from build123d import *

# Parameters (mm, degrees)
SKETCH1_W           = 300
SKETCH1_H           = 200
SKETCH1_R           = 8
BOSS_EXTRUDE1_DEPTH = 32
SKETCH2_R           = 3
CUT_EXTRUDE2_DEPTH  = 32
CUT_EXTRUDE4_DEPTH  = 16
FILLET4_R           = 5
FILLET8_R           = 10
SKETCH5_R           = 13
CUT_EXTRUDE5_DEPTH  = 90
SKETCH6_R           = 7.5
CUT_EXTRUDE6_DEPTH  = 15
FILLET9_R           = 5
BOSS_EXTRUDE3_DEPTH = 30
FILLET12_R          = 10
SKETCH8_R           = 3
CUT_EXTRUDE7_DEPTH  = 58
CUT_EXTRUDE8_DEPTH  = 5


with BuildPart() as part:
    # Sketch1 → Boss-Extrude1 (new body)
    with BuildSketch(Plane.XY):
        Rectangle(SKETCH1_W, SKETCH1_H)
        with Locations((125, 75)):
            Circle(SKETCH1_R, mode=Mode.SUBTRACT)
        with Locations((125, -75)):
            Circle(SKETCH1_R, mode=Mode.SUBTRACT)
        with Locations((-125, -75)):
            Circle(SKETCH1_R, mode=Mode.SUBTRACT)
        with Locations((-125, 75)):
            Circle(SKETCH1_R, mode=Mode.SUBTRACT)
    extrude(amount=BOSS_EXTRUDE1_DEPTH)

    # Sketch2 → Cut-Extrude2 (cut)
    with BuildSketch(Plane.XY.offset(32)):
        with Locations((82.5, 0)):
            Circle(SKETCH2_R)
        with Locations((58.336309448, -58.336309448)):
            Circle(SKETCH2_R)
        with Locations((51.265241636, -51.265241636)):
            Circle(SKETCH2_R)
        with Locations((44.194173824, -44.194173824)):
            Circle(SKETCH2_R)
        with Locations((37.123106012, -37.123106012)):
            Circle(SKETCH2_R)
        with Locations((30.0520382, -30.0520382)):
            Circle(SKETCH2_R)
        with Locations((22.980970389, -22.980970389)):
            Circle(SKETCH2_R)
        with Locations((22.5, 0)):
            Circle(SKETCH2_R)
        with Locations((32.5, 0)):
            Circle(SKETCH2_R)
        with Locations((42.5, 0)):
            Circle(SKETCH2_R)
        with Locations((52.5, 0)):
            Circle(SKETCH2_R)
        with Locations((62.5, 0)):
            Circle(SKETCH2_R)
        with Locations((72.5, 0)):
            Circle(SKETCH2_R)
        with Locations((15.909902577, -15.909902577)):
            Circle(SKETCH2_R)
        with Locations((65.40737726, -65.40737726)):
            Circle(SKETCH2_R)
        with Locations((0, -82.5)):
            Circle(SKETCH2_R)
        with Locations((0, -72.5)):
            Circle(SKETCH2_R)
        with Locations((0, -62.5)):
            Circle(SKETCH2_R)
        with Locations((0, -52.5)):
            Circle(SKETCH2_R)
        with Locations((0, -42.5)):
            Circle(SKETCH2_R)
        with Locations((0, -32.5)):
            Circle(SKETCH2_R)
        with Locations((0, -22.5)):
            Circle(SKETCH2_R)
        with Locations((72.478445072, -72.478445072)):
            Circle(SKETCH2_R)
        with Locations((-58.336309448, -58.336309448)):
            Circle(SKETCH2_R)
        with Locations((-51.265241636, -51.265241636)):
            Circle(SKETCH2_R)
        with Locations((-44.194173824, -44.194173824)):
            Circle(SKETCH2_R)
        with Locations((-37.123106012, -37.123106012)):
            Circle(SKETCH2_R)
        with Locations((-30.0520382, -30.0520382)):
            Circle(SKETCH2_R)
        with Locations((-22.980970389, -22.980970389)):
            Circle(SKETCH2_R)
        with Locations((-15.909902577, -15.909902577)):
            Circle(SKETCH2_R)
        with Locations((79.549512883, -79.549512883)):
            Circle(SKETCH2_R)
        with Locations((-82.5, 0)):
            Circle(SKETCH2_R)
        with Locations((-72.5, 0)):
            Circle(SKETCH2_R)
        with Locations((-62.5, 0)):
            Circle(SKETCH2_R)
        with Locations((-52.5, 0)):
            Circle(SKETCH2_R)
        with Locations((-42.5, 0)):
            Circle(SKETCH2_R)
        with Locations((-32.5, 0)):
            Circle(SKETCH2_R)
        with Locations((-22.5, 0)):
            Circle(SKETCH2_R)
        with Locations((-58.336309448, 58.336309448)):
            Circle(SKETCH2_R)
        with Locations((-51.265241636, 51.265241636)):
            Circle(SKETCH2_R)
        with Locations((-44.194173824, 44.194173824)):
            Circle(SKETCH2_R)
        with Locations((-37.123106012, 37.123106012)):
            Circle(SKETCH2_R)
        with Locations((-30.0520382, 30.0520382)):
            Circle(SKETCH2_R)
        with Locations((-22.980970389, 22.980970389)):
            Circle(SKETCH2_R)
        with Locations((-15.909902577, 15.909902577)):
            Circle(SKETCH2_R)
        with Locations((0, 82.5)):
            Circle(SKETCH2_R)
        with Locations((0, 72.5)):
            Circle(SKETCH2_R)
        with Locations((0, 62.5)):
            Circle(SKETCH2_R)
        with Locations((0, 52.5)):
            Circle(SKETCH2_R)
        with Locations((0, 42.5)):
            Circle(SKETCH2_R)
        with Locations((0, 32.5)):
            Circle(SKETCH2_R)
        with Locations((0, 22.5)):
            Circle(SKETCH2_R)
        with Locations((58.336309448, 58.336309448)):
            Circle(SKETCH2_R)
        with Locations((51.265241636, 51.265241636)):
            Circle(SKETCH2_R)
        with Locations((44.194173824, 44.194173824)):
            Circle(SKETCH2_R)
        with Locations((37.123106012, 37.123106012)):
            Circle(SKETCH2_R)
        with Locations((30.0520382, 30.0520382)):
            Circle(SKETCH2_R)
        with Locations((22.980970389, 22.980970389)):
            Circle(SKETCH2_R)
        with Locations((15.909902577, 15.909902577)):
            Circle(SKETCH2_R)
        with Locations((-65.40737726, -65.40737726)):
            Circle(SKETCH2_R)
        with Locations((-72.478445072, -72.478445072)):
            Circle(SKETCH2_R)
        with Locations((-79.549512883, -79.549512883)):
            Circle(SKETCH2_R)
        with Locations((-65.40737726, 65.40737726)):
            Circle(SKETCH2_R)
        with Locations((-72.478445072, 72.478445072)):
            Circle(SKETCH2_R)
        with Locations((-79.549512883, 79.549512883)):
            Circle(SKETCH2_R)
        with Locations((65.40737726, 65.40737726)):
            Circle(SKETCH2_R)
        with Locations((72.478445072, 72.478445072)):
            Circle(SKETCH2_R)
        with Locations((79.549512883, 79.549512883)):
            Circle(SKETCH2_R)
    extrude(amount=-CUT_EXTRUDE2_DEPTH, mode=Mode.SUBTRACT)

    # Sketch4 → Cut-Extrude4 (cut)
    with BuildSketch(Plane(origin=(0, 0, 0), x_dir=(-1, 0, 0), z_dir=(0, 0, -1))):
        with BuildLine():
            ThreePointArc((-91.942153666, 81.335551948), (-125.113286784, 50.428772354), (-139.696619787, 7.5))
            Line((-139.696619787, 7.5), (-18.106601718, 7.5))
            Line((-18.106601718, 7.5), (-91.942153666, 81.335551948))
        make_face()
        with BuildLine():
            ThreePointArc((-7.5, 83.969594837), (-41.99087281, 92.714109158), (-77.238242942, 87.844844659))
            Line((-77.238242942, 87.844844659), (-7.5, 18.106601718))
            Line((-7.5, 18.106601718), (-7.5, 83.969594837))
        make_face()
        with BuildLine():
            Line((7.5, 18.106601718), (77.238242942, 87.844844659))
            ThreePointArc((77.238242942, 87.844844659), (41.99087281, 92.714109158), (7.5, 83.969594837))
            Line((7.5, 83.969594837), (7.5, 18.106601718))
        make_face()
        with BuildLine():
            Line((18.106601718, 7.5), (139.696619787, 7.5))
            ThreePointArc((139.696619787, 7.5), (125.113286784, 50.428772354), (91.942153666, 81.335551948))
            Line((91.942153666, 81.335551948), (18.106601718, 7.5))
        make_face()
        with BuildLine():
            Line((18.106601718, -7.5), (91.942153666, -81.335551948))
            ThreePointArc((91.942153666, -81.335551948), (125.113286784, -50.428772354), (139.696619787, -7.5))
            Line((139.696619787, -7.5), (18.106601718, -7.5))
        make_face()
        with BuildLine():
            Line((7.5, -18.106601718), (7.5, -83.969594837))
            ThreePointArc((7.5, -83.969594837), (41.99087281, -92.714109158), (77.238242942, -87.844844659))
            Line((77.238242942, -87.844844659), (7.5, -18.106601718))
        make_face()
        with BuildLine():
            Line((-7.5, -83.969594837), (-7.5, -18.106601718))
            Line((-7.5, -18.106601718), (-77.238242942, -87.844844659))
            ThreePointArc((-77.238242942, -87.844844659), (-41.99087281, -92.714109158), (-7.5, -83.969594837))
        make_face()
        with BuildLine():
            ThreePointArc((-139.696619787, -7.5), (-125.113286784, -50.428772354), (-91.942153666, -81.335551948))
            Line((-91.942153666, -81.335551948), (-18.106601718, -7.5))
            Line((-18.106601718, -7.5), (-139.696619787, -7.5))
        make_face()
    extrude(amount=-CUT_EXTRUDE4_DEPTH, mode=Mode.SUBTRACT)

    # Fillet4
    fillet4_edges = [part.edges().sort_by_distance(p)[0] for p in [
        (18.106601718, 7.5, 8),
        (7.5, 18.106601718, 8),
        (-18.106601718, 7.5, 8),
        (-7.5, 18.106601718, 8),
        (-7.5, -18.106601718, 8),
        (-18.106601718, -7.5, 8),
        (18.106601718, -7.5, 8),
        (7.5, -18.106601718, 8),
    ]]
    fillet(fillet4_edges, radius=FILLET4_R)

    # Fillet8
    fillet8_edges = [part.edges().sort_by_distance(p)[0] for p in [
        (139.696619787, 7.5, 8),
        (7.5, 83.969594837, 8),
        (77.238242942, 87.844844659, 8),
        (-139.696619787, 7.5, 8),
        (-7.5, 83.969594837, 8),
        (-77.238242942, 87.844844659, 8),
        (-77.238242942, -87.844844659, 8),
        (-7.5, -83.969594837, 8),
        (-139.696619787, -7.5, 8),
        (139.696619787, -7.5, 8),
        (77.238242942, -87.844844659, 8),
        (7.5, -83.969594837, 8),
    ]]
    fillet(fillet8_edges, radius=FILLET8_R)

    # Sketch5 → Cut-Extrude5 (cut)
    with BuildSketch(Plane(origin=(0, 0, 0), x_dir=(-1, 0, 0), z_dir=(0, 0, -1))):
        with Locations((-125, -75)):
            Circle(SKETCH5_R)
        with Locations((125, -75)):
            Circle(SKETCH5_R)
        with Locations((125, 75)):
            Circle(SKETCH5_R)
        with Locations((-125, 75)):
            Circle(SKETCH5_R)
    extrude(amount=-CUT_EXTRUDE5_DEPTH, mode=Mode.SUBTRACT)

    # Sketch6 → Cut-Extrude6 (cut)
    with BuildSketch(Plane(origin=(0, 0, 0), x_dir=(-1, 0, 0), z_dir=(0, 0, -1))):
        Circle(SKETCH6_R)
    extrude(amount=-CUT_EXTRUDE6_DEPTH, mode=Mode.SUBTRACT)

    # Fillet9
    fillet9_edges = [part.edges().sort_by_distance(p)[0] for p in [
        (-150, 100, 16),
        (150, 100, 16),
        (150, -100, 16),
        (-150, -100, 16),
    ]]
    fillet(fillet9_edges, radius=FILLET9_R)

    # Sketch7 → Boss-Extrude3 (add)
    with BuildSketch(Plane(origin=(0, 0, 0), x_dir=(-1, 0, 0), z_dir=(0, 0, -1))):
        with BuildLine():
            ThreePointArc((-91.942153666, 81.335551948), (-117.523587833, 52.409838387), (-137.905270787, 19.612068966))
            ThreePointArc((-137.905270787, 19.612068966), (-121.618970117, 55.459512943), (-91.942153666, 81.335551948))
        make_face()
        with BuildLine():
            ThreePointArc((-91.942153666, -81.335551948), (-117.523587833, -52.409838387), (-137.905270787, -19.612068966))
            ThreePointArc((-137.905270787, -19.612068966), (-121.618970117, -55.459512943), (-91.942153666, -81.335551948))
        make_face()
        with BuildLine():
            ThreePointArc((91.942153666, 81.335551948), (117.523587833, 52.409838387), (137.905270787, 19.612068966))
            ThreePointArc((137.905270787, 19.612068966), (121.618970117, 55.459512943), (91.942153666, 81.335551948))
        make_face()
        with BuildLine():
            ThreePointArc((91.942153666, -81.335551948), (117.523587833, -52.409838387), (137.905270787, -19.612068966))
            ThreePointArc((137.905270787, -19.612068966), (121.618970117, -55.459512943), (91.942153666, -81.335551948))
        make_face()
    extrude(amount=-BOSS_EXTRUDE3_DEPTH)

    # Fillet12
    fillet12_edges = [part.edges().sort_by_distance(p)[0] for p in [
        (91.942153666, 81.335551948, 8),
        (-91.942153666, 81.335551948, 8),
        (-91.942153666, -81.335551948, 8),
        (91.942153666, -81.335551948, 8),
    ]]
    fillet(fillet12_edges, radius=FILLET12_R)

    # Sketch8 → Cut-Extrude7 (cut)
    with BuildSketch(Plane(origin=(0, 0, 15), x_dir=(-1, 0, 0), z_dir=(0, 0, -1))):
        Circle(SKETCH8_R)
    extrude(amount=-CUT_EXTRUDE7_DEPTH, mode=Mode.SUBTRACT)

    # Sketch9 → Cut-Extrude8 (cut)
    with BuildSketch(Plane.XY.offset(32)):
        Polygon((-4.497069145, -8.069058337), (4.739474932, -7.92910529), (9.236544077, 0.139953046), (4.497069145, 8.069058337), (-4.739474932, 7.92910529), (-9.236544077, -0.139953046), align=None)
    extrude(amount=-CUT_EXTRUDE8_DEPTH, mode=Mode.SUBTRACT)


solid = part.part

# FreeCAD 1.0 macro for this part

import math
import FreeCAD as App
import Part
import Sketcher


def edges_at(feature, points):
    """Names of the edges that pass closest to the given points."""
    edges = feature.Shape.Edges
    near = lambda p: min(range(len(edges)), key=lambda i: edges[i].distToShape(Part.Vertex(*p))[0])
    return sorted({f"Edge{near(p) + 1}" for p in points})

doc = App.newDocument("Part")
body = doc.addObject("PartDesign::Body", "Body")

# Sketch on XY plane
sketch1 = body.newObject("Sketcher::SketchObject", "Sketch")
sketch1.AttachmentSupport = (doc.getObject("XY_Plane"), [""])
sketch1.MapMode = "FlatFace"
sketch1.addGeometry([
    Part.LineSegment(App.Vector(-150, 100, 0), App.Vector(-150, -100, 0)),  # 0
    Part.LineSegment(App.Vector(-150, -100, 0), App.Vector(150, -100, 0)),  # 1
    Part.LineSegment(App.Vector(150, -100, 0), App.Vector(150, 100, 0)),  # 2
    Part.LineSegment(App.Vector(150, 100, 0), App.Vector(-150, 100, 0)),  # 3
    Part.Circle(App.Vector(-125, -75, 0), App.Vector(0, 0, 1), 8),  # 4
    Part.Circle(App.Vector(125, -75, 0), App.Vector(0, 0, 1), 8),  # 5
    Part.Circle(App.Vector(-125, 75, 0), App.Vector(0, 0, 1), 8),  # 6
    Part.Circle(App.Vector(125, 75, 0), App.Vector(0, 0, 1), 8),  # 7
], False)
sketch1.addConstraint([
    Sketcher.Constraint("Coincident", 0, 2, 1, 1),
    Sketcher.Constraint("Coincident", 1, 2, 2, 1),
    Sketcher.Constraint("Coincident", 2, 2, 3, 1),
    Sketcher.Constraint("Coincident", 3, 2, 0, 1),
    Sketcher.Constraint("Vertical", 0),
    Sketcher.Constraint("Horizontal", 1),
    Sketcher.Constraint("Vertical", 2),
    Sketcher.Constraint("Horizontal", 3),
    Sketcher.Constraint("Equal", 4, 5),
    Sketcher.Constraint("Equal", 5, 6),
    Sketcher.Constraint("Equal", 6, 7),
    Sketcher.Constraint("Symmetric", 5, 3, 6, 3, -1, 1),
    Sketcher.Constraint("Symmetric", 4, 3, 7, 3, -1, 1),
    Sketcher.Constraint("Symmetric", 0, 2, 2, 2, -1, 1),
    Sketcher.Constraint("Symmetric", 4, 3, 5, 3, -2),
    Sketcher.Constraint("Diameter", 4, 16.0),
    Sketcher.Constraint("DistanceX", 1, 1, 1, 2, 300.0),
    Sketcher.Constraint("DistanceY", 0, 2, 0, 1, 200.0),
    Sketcher.Constraint("DistanceX", 4, 3, -1, 1, 125.0),
    Sketcher.Constraint("DistanceY", 4, 3, -1, 1, 75.0),
])
pad1 = body.newObject("PartDesign::Pad", "Pad")
pad1.Profile = sketch1
pad1.Length = 32

# Sketch on XY plane
sketch2 = body.newObject("Sketcher::SketchObject", "Sketch001")
sketch2.AttachmentSupport = (doc.getObject("XY_Plane"), [""])
sketch2.MapMode = "FlatFace"
sketch2.AttachmentOffset = App.Placement(App.Vector(0, 0, 32), App.Rotation())
sketch2.addGeometry([
    Part.Circle(App.Vector(82.5, 0, 0), App.Vector(0, 0, 1), 3),  # 0
    Part.Circle(App.Vector(58.336309, -58.336309, 0), App.Vector(0, 0, 1), 3),  # 1
    Part.Circle(App.Vector(51.265242, -51.265242, 0), App.Vector(0, 0, 1), 3),  # 2
    Part.Circle(App.Vector(44.194174, -44.194174, 0), App.Vector(0, 0, 1), 3),  # 3
    Part.Circle(App.Vector(37.123106, -37.123106, 0), App.Vector(0, 0, 1), 3),  # 4
    Part.Circle(App.Vector(30.052038, -30.052038, 0), App.Vector(0, 0, 1), 3),  # 5
    Part.Circle(App.Vector(22.98097, -22.98097, 0), App.Vector(0, 0, 1), 3),  # 6
    Part.Circle(App.Vector(22.5, 0, 0), App.Vector(0, 0, 1), 3),  # 7
    Part.Circle(App.Vector(32.5, 0, 0), App.Vector(0, 0, 1), 3),  # 8
    Part.Circle(App.Vector(42.5, 0, 0), App.Vector(0, 0, 1), 3),  # 9
    Part.Circle(App.Vector(52.5, 0, 0), App.Vector(0, 0, 1), 3),  # 10
    Part.Circle(App.Vector(62.5, 0, 0), App.Vector(0, 0, 1), 3),  # 11
    Part.Circle(App.Vector(72.5, 0, 0), App.Vector(0, 0, 1), 3),  # 12
    Part.Circle(App.Vector(15.909903, -15.909903, 0), App.Vector(0, 0, 1), 3),  # 13
    Part.Circle(App.Vector(65.407377, -65.407377, 0), App.Vector(0, 0, 1), 3),  # 14
    Part.Circle(App.Vector(0, -82.5, 0), App.Vector(0, 0, 1), 3),  # 15
    Part.Circle(App.Vector(0, -72.5, 0), App.Vector(0, 0, 1), 3),  # 16
    Part.Circle(App.Vector(0, -62.5, 0), App.Vector(0, 0, 1), 3),  # 17
    Part.Circle(App.Vector(0, -52.5, 0), App.Vector(0, 0, 1), 3),  # 18
    Part.Circle(App.Vector(0, -42.5, 0), App.Vector(0, 0, 1), 3),  # 19
    Part.Circle(App.Vector(0, -32.5, 0), App.Vector(0, 0, 1), 3),  # 20
    Part.Circle(App.Vector(0, -22.5, 0), App.Vector(0, 0, 1), 3),  # 21
    Part.Circle(App.Vector(72.478445, -72.478445, 0), App.Vector(0, 0, 1), 3),  # 22
    Part.Circle(App.Vector(-58.336309, -58.336309, 0), App.Vector(0, 0, 1), 3),  # 23
    Part.Circle(App.Vector(-51.265242, -51.265242, 0), App.Vector(0, 0, 1), 3),  # 24
    Part.Circle(App.Vector(-44.194174, -44.194174, 0), App.Vector(0, 0, 1), 3),  # 25
    Part.Circle(App.Vector(-37.123106, -37.123106, 0), App.Vector(0, 0, 1), 3),  # 26
    Part.Circle(App.Vector(-30.052038, -30.052038, 0), App.Vector(0, 0, 1), 3),  # 27
    Part.Circle(App.Vector(-22.98097, -22.98097, 0), App.Vector(0, 0, 1), 3),  # 28
    Part.Circle(App.Vector(-15.909903, -15.909903, 0), App.Vector(0, 0, 1), 3),  # 29
    Part.Circle(App.Vector(79.549513, -79.549513, 0), App.Vector(0, 0, 1), 3),  # 30
    Part.Circle(App.Vector(-82.5, 0, 0), App.Vector(0, 0, 1), 3),  # 31
    Part.Circle(App.Vector(-72.5, 0, 0), App.Vector(0, 0, 1), 3),  # 32
    Part.Circle(App.Vector(-62.5, 0, 0), App.Vector(0, 0, 1), 3),  # 33
    Part.Circle(App.Vector(-52.5, 0, 0), App.Vector(0, 0, 1), 3),  # 34
    Part.Circle(App.Vector(-42.5, 0, 0), App.Vector(0, 0, 1), 3),  # 35
    Part.Circle(App.Vector(-32.5, 0, 0), App.Vector(0, 0, 1), 3),  # 36
    Part.Circle(App.Vector(-22.5, 0, 0), App.Vector(0, 0, 1), 3),  # 37
    Part.Circle(App.Vector(-58.336309, 58.336309, 0), App.Vector(0, 0, 1), 3),  # 38
    Part.Circle(App.Vector(-51.265242, 51.265242, 0), App.Vector(0, 0, 1), 3),  # 39
    Part.Circle(App.Vector(-44.194174, 44.194174, 0), App.Vector(0, 0, 1), 3),  # 40
    Part.Circle(App.Vector(-37.123106, 37.123106, 0), App.Vector(0, 0, 1), 3),  # 41
    Part.Circle(App.Vector(-30.052038, 30.052038, 0), App.Vector(0, 0, 1), 3),  # 42
    Part.Circle(App.Vector(-22.98097, 22.98097, 0), App.Vector(0, 0, 1), 3),  # 43
    Part.Circle(App.Vector(-15.909903, 15.909903, 0), App.Vector(0, 0, 1), 3),  # 44
    Part.Circle(App.Vector(0, 82.5, 0), App.Vector(0, 0, 1), 3),  # 45
    Part.Circle(App.Vector(0, 72.5, 0), App.Vector(0, 0, 1), 3),  # 46
    Part.Circle(App.Vector(0, 62.5, 0), App.Vector(0, 0, 1), 3),  # 47
    Part.Circle(App.Vector(0, 52.5, 0), App.Vector(0, 0, 1), 3),  # 48
    Part.Circle(App.Vector(0, 42.5, 0), App.Vector(0, 0, 1), 3),  # 49
    Part.Circle(App.Vector(0, 32.5, 0), App.Vector(0, 0, 1), 3),  # 50
    Part.Circle(App.Vector(0, 22.5, 0), App.Vector(0, 0, 1), 3),  # 51
    Part.Circle(App.Vector(58.336309, 58.336309, 0), App.Vector(0, 0, 1), 3),  # 52
    Part.Circle(App.Vector(51.265242, 51.265242, 0), App.Vector(0, 0, 1), 3),  # 53
    Part.Circle(App.Vector(44.194174, 44.194174, 0), App.Vector(0, 0, 1), 3),  # 54
    Part.Circle(App.Vector(37.123106, 37.123106, 0), App.Vector(0, 0, 1), 3),  # 55
    Part.Circle(App.Vector(30.052038, 30.052038, 0), App.Vector(0, 0, 1), 3),  # 56
    Part.Circle(App.Vector(22.98097, 22.98097, 0), App.Vector(0, 0, 1), 3),  # 57
    Part.Circle(App.Vector(15.909903, 15.909903, 0), App.Vector(0, 0, 1), 3),  # 58
    Part.Circle(App.Vector(-65.407377, -65.407377, 0), App.Vector(0, 0, 1), 3),  # 59
    Part.Circle(App.Vector(-72.478445, -72.478445, 0), App.Vector(0, 0, 1), 3),  # 60
    Part.Circle(App.Vector(-79.549513, -79.549513, 0), App.Vector(0, 0, 1), 3),  # 61
    Part.Circle(App.Vector(-65.407377, 65.407377, 0), App.Vector(0, 0, 1), 3),  # 62
    Part.Circle(App.Vector(-72.478445, 72.478445, 0), App.Vector(0, 0, 1), 3),  # 63
    Part.Circle(App.Vector(-79.549513, 79.549513, 0), App.Vector(0, 0, 1), 3),  # 64
    Part.Circle(App.Vector(65.407377, 65.407377, 0), App.Vector(0, 0, 1), 3),  # 65
    Part.Circle(App.Vector(72.478445, 72.478445, 0), App.Vector(0, 0, 1), 3),  # 66
    Part.Circle(App.Vector(79.549513, 79.549513, 0), App.Vector(0, 0, 1), 3),  # 67
], False)
sketch2.addConstraint([
    Sketcher.Constraint("Equal", 0, 1),
    Sketcher.Constraint("Equal", 1, 2),
    Sketcher.Constraint("Equal", 2, 3),
    Sketcher.Constraint("Equal", 3, 4),
    Sketcher.Constraint("Equal", 4, 5),
    Sketcher.Constraint("Equal", 5, 6),
    Sketcher.Constraint("Equal", 6, 7),
    Sketcher.Constraint("Equal", 7, 8),
    Sketcher.Constraint("Equal", 8, 9),
    Sketcher.Constraint("Equal", 9, 10),
    Sketcher.Constraint("Equal", 10, 11),
    Sketcher.Constraint("Equal", 11, 12),
    Sketcher.Constraint("Equal", 12, 13),
    Sketcher.Constraint("Equal", 13, 14),
    Sketcher.Constraint("Equal", 14, 15),
    Sketcher.Constraint("Equal", 15, 16),
    Sketcher.Constraint("Equal", 16, 17),
    Sketcher.Constraint("Equal", 17, 18),
    Sketcher.Constraint("Equal", 18, 19),
    Sketcher.Constraint("Equal", 19, 20),
    Sketcher.Constraint("Equal", 20, 21),
    Sketcher.Constraint("Equal", 21, 22),
    Sketcher.Constraint("Equal", 22, 23),
    Sketcher.Constraint("Equal", 23, 24),
    Sketcher.Constraint("Equal", 24, 25),
    Sketcher.Constraint("Equal", 25, 26),
    Sketcher.Constraint("Equal", 26, 27),
    Sketcher.Constraint("Equal", 27, 28),
    Sketcher.Constraint("Equal", 28, 29),
    Sketcher.Constraint("Equal", 29, 30),
    Sketcher.Constraint("Equal", 30, 31),
    Sketcher.Constraint("Equal", 31, 32),
    Sketcher.Constraint("Equal", 32, 33),
    Sketcher.Constraint("Equal", 33, 34),
    Sketcher.Constraint("Equal", 34, 35),
    Sketcher.Constraint("Equal", 35, 36),
    Sketcher.Constraint("Equal", 36, 37),
    Sketcher.Constraint("Equal", 37, 38),
    Sketcher.Constraint("Equal", 38, 39),
    Sketcher.Constraint("Equal", 39, 40),
    Sketcher.Constraint("Equal", 40, 41),
    Sketcher.Constraint("Equal", 41, 42),
    Sketcher.Constraint("Equal", 42, 43),
    Sketcher.Constraint("Equal", 43, 44),
    Sketcher.Constraint("Equal", 44, 45),
    Sketcher.Constraint("Equal", 45, 46),
    Sketcher.Constraint("Equal", 46, 47),
    Sketcher.Constraint("Equal", 47, 48),
    Sketcher.Constraint("Equal", 48, 49),
    Sketcher.Constraint("Equal", 49, 50),
    Sketcher.Constraint("Equal", 50, 51),
    Sketcher.Constraint("Equal", 51, 52),
    Sketcher.Constraint("Equal", 52, 53),
    Sketcher.Constraint("Equal", 53, 54),
    Sketcher.Constraint("Equal", 54, 55),
    Sketcher.Constraint("Equal", 55, 56),
    Sketcher.Constraint("Equal", 56, 57),
    Sketcher.Constraint("Equal", 57, 58),
    Sketcher.Constraint("Equal", 58, 59),
    Sketcher.Constraint("Equal", 59, 60),
    Sketcher.Constraint("Equal", 60, 61),
    Sketcher.Constraint("Equal", 61, 62),
    Sketcher.Constraint("Equal", 62, 63),
    Sketcher.Constraint("Equal", 63, 64),
    Sketcher.Constraint("Equal", 64, 65),
    Sketcher.Constraint("Equal", 65, 66),
    Sketcher.Constraint("Equal", 66, 67),
    Sketcher.Constraint("Symmetric", 0, 3, 31, 3, -1, 1),
    Sketcher.Constraint("Symmetric", 12, 3, 32, 3, -1, 1),
    Sketcher.Constraint("Symmetric", 11, 3, 33, 3, -1, 1),
    Sketcher.Constraint("Symmetric", 10, 3, 34, 3, -1, 1),
    Sketcher.Constraint("Symmetric", 9, 3, 35, 3, -1, 1),
    Sketcher.Constraint("Symmetric", 8, 3, 36, 3, -1, 1),
    Sketcher.Constraint("Symmetric", 7, 3, 37, 3, -1, 1),
    Sketcher.Constraint("Symmetric", 1, 3, 38, 3, -1, 1),
    Sketcher.Constraint("Symmetric", 2, 3, 39, 3, -1, 1),
    Sketcher.Constraint("Symmetric", 3, 3, 40, 3, -1, 1),
    Sketcher.Constraint("Symmetric", 4, 3, 41, 3, -1, 1),
    Sketcher.Constraint("Symmetric", 5, 3, 42, 3, -1, 1),
    Sketcher.Constraint("Symmetric", 6, 3, 43, 3, -1, 1),
    Sketcher.Constraint("Symmetric", 13, 3, 44, 3, -1, 1),
    Sketcher.Constraint("Symmetric", 15, 3, 45, 3, -1, 1),
    Sketcher.Constraint("Symmetric", 16, 3, 46, 3, -1, 1),
    Sketcher.Constraint("Symmetric", 17, 3, 47, 3, -1, 1),
    Sketcher.Constraint("Symmetric", 18, 3, 48, 3, -1, 1),
    Sketcher.Constraint("Symmetric", 19, 3, 49, 3, -1, 1),
    Sketcher.Constraint("Symmetric", 20, 3, 50, 3, -1, 1),
    Sketcher.Constraint("Symmetric", 21, 3, 51, 3, -1, 1),
    Sketcher.Constraint("Symmetric", 23, 3, 52, 3, -1, 1),
    Sketcher.Constraint("Symmetric", 24, 3, 53, 3, -1, 1),
    Sketcher.Constraint("Symmetric", 25, 3, 54, 3, -1, 1),
    Sketcher.Constraint("Symmetric", 26, 3, 55, 3, -1, 1),
    Sketcher.Constraint("Symmetric", 27, 3, 56, 3, -1, 1),
    Sketcher.Constraint("Symmetric", 28, 3, 57, 3, -1, 1),
    Sketcher.Constraint("Symmetric", 29, 3, 58, 3, -1, 1),
    Sketcher.Constraint("Symmetric", 14, 3, 62, 3, -1, 1),
    Sketcher.Constraint("Symmetric", 22, 3, 63, 3, -1, 1),
    Sketcher.Constraint("Symmetric", 30, 3, 64, 3, -1, 1),
    Sketcher.Constraint("Symmetric", 59, 3, 65, 3, -1, 1),
    Sketcher.Constraint("Symmetric", 60, 3, 66, 3, -1, 1),
    Sketcher.Constraint("Symmetric", 61, 3, 67, 3, -1, 1),
    Sketcher.Constraint("Symmetric", 1, 3, 23, 3, -2),
    Sketcher.Constraint("Symmetric", 2, 3, 24, 3, -2),
    Sketcher.Constraint("Symmetric", 3, 3, 25, 3, -2),
    Sketcher.Constraint("Symmetric", 4, 3, 26, 3, -2),
    Sketcher.Constraint("Symmetric", 5, 3, 27, 3, -2),
    Sketcher.Constraint("Symmetric", 6, 3, 28, 3, -2),
    Sketcher.Constraint("Symmetric", 13, 3, 29, 3, -2),
    Sketcher.Constraint("Symmetric", 14, 3, 59, 3, -2),
    Sketcher.Constraint("Symmetric", 22, 3, 60, 3, -2),
    Sketcher.Constraint("Symmetric", 30, 3, 61, 3, -2),
    Sketcher.Constraint("PointOnObject", 0, 3, -1),
    Sketcher.Constraint("PointOnObject", 7, 3, -1),
    Sketcher.Constraint("PointOnObject", 8, 3, -1),
    Sketcher.Constraint("PointOnObject", 9, 3, -1),
    Sketcher.Constraint("PointOnObject", 10, 3, -1),
    Sketcher.Constraint("PointOnObject", 11, 3, -1),
    Sketcher.Constraint("PointOnObject", 12, 3, -1),
    Sketcher.Constraint("PointOnObject", 15, 3, -2),
    Sketcher.Constraint("PointOnObject", 16, 3, -2),
    Sketcher.Constraint("PointOnObject", 17, 3, -2),
    Sketcher.Constraint("PointOnObject", 18, 3, -2),
    Sketcher.Constraint("PointOnObject", 19, 3, -2),
    Sketcher.Constraint("PointOnObject", 20, 3, -2),
    Sketcher.Constraint("PointOnObject", 21, 3, -2),
    Sketcher.Constraint("Diameter", 0, 6.0),
    Sketcher.Constraint("DistanceX", -1, 1, 0, 3, 82.5),
    Sketcher.Constraint("DistanceX", -1, 1, 7, 3, 22.5),
    Sketcher.Constraint("DistanceX", -1, 1, 8, 3, 32.5),
    Sketcher.Constraint("DistanceX", -1, 1, 9, 3, 42.5),
    Sketcher.Constraint("DistanceX", -1, 1, 10, 3, 52.5),
    Sketcher.Constraint("DistanceX", -1, 1, 11, 3, 62.5),
    Sketcher.Constraint("DistanceX", -1, 1, 12, 3, 72.5),
    Sketcher.Constraint("DistanceY", 15, 3, -1, 1, 82.5),
    Sketcher.Constraint("DistanceY", 16, 3, -1, 1, 72.5),
    Sketcher.Constraint("DistanceY", 17, 3, -1, 1, 62.5),
    Sketcher.Constraint("DistanceY", 18, 3, -1, 1, 52.5),
    Sketcher.Constraint("DistanceY", 19, 3, -1, 1, 42.5),
    Sketcher.Constraint("DistanceY", 20, 3, -1, 1, 32.5),
    Sketcher.Constraint("DistanceY", 21, 3, -1, 1, 22.5),
    Sketcher.Constraint("DistanceX", -1, 1, 1, 3, 58.336309),
    Sketcher.Constraint("DistanceY", 1, 3, -1, 1, 58.336309),
    Sketcher.Constraint("DistanceX", -1, 1, 2, 3, 51.265242),
    Sketcher.Constraint("DistanceY", 2, 3, -1, 1, 51.265242),
    Sketcher.Constraint("DistanceX", -1, 1, 5, 3, 30.052038),
    Sketcher.Constraint("DistanceY", 5, 3, -1, 1, 30.052038),
    Sketcher.Constraint("DistanceX", -1, 1, 6, 3, 22.98097),
    Sketcher.Constraint("DistanceY", 6, 3, -1, 1, 22.98097),
    Sketcher.Constraint("DistanceX", -1, 1, 3, 3, 44.194174),
    Sketcher.Constraint("DistanceY", 3, 3, -1, 1, 44.194174),
    Sketcher.Constraint("DistanceX", -1, 1, 4, 3, 37.123106),
    Sketcher.Constraint("DistanceY", 4, 3, -1, 1, 37.123106),
    Sketcher.Constraint("DistanceX", -1, 1, 13, 3, 15.909903),
    Sketcher.Constraint("DistanceY", 13, 3, -1, 1, 15.909903),
    Sketcher.Constraint("DistanceX", -1, 1, 14, 3, 65.407377),
    Sketcher.Constraint("DistanceY", 14, 3, -1, 1, 65.407377),
    Sketcher.Constraint("DistanceX", -1, 1, 22, 3, 72.478445),
    Sketcher.Constraint("DistanceY", 22, 3, -1, 1, 72.478445),
    Sketcher.Constraint("DistanceX", -1, 1, 30, 3, 79.549513),
    Sketcher.Constraint("DistanceY", 30, 3, -1, 1, 79.549513),
])
pocket1 = body.newObject("PartDesign::Pocket", "Pocket")
pocket1.Profile = sketch2
pocket1.Length = 32

# Sketch on XY plane
sketch3 = body.newObject("Sketcher::SketchObject", "Sketch002")
sketch3.AttachmentSupport = (doc.getObject("XY_Plane"), [""])
sketch3.MapMode = "FlatFace"
sketch3.addGeometry([
    Part.ArcOfCircle(Part.Circle(App.Vector(47.142857, 0, 0), App.Vector(0, 0, 1), 92.857143), math.radians(4.632783), math.radians(61.154203)),  # 0
    Part.LineSegment(App.Vector(139.69662, 7.5, 0), App.Vector(18.106602, 7.5, 0)),  # 1
    Part.LineSegment(App.Vector(18.106602, 7.5, 0), App.Vector(91.942154, 81.335552, 0)),  # 2
    Part.ArcOfCircle(Part.Circle(App.Vector(47.142857, 0, 0), App.Vector(0, 0, 1), 92.857143), math.radians(71.088691), math.radians(115.272449)),  # 3
    Part.LineSegment(App.Vector(77.238243, 87.844845, 0), App.Vector(7.5, 18.106602, 0)),  # 4
    Part.LineSegment(App.Vector(7.5, 18.106602, 0), App.Vector(7.5, 83.969595, 0)),  # 5
    Part.LineSegment(App.Vector(-7.5, 18.106602, 0), App.Vector(-77.238243, 87.844845, 0)),  # 6
    Part.ArcOfCircle(Part.Circle(App.Vector(-47.142857, 0, 0), App.Vector(0, 0, 1), 92.857143), math.radians(64.727551), math.radians(108.911309)),  # 7
    Part.LineSegment(App.Vector(-7.5, 83.969595, 0), App.Vector(-7.5, 18.106602, 0)),  # 8
    Part.LineSegment(App.Vector(-18.106602, 7.5, 0), App.Vector(-139.69662, 7.5, 0)),  # 9
    Part.ArcOfCircle(Part.Circle(App.Vector(-47.142857, 0, 0), App.Vector(0, 0, 1), 92.857143), math.radians(118.845797), math.radians(175.367217)),  # 10
    Part.LineSegment(App.Vector(-91.942154, 81.335552, 0), App.Vector(-18.106602, 7.5, 0)),  # 11
    Part.LineSegment(App.Vector(-18.106602, -7.5, 0), App.Vector(-91.942154, -81.335552, 0)),  # 12
    Part.ArcOfCircle(Part.Circle(App.Vector(-47.142857, 0, 0), App.Vector(0, 0, 1), 92.857143), math.radians(-175.367217), math.radians(-118.845797)),  # 13
    Part.LineSegment(App.Vector(-139.69662, -7.5, 0), App.Vector(-18.106602, -7.5, 0)),  # 14
    Part.LineSegment(App.Vector(-7.5, -18.106602, 0), App.Vector(-7.5, -83.969595, 0)),  # 15
    Part.ArcOfCircle(Part.Circle(App.Vector(-47.142857, 0, 0), App.Vector(0, 0, 1), 92.857143), math.radians(-108.911309), math.radians(-64.727551)),  # 16
    Part.LineSegment(App.Vector(-77.238243, -87.844845, 0), App.Vector(-7.5, -18.106602, 0)),  # 17
    Part.LineSegment(App.Vector(7.5, -83.969595, 0), App.Vector(7.5, -18.106602, 0)),  # 18
    Part.LineSegment(App.Vector(7.5, -18.106602, 0), App.Vector(77.238243, -87.844845, 0)),  # 19
    Part.ArcOfCircle(Part.Circle(App.Vector(47.142857, 0, 0), App.Vector(0, 0, 1), 92.857143), math.radians(-115.272449), math.radians(-71.088691)),  # 20
    Part.ArcOfCircle(Part.Circle(App.Vector(47.142857, 0, 0), App.Vector(0, 0, 1), 92.857143), math.radians(-61.154203), math.radians(-4.632783)),  # 21
    Part.LineSegment(App.Vector(91.942154, -81.335552, 0), App.Vector(18.106602, -7.5, 0)),  # 22
    Part.LineSegment(App.Vector(18.106602, -7.5, 0), App.Vector(139.69662, -7.5, 0)),  # 23
], False)
sketch3.addConstraint([
    Sketcher.Constraint("Coincident", 0, 1, 1, 1),
    Sketcher.Constraint("Coincident", 1, 2, 2, 1),
    Sketcher.Constraint("Coincident", 2, 2, 0, 2),
    Sketcher.Constraint("Coincident", 3, 1, 4, 1),
    Sketcher.Constraint("Coincident", 4, 2, 5, 1),
    Sketcher.Constraint("Coincident", 5, 2, 3, 2),
    Sketcher.Constraint("Coincident", 6, 2, 7, 2),
    Sketcher.Constraint("Coincident", 7, 1, 8, 1),
    Sketcher.Constraint("Coincident", 8, 2, 6, 1),
    Sketcher.Constraint("Coincident", 9, 2, 10, 2),
    Sketcher.Constraint("Coincident", 10, 1, 11, 1),
    Sketcher.Constraint("Coincident", 11, 2, 9, 1),
    Sketcher.Constraint("Coincident", 12, 2, 13, 2),
    Sketcher.Constraint("Coincident", 13, 1, 14, 1),
    Sketcher.Constraint("Coincident", 14, 2, 12, 1),
    Sketcher.Constraint("Coincident", 15, 2, 16, 2),
    Sketcher.Constraint("Coincident", 16, 1, 17, 1),
    Sketcher.Constraint("Coincident", 17, 2, 15, 1),
    Sketcher.Constraint("Coincident", 18, 2, 19, 1),
    Sketcher.Constraint("Coincident", 19, 2, 20, 2),
    Sketcher.Constraint("Coincident", 20, 1, 18, 1),
    Sketcher.Constraint("Coincident", 21, 1, 22, 1),
    Sketcher.Constraint("Coincident", 22, 2, 23, 1),
    Sketcher.Constraint("Coincident", 23, 2, 21, 2),
    Sketcher.Constraint("Horizontal", 1),
    Sketcher.Constraint("Vertical", 5),
    Sketcher.Constraint("Vertical", 8),
    Sketcher.Constraint("Horizontal", 9),
    Sketcher.Constraint("Horizontal", 14),
    Sketcher.Constraint("Vertical", 15),
    Sketcher.Constraint("Vertical", 18),
    Sketcher.Constraint("Horizontal", 23),
    Sketcher.Constraint("Coincident", 3, 3, 0, 3),
    Sketcher.Constraint("Coincident", 10, 3, 7, 3),
    Sketcher.Constraint("Coincident", 13, 3, 7, 3),
    Sketcher.Constraint("Coincident", 16, 3, 7, 3),
    Sketcher.Constraint("Coincident", 20, 3, 0, 3),
    Sketcher.Constraint("Coincident", 21, 3, 0, 3),
    Sketcher.Constraint("Equal", 0, 3),
    Sketcher.Constraint("Equal", 3, 7),
    Sketcher.Constraint("Equal", 7, 10),
    Sketcher.Constraint("Equal", 10, 13),
    Sketcher.Constraint("Equal", 13, 16),
    Sketcher.Constraint("Equal", 16, 20),
    Sketcher.Constraint("Equal", 20, 21),
    Sketcher.Constraint("Symmetric", 0, 3, 7, 3, -1, 1),
    Sketcher.Constraint("Symmetric", 1, 2, 14, 2, -1, 1),
    Sketcher.Constraint("Symmetric", 4, 2, 17, 2, -1, 1),
    Sketcher.Constraint("Symmetric", 8, 2, 18, 2, -1, 1),
    Sketcher.Constraint("Symmetric", 11, 2, 22, 2, -1, 1),
    Sketcher.Constraint("Symmetric", 3, 1, 6, 2, -2),
    Sketcher.Constraint("Symmetric", 4, 2, 8, 2, -2),
    Sketcher.Constraint("Symmetric", 1, 2, 11, 2, -2),
    Sketcher.Constraint("Parallel", 2, 4),
    Sketcher.Constraint("Perpendicular", 4, 6),
    Sketcher.Constraint("Parallel", 6, 11),
    Sketcher.Constraint("Perpendicular", 11, 12),
    Sketcher.Constraint("Parallel", 12, 17),
    Sketcher.Constraint("Perpendicular", 17, 19),
    Sketcher.Constraint("Parallel", 19, 22),
    Sketcher.Constraint("DistanceX", 7, 1, 5, 2, 15.0),
    Sketcher.Constraint("DistanceY", 13, 1, 9, 2, 15.0),
    Sketcher.Constraint("Radius", 0, 92.857143),
    Sketcher.Constraint("DistanceX", 1, 2, 1, 1, 121.590018),
    Sketcher.Constraint("DistanceX", -1, 1, 1, 2, 18.106602),
    Sketcher.Constraint("DistanceY", -1, 1, 4, 2, 18.106602),
])
pocket2 = body.newObject("PartDesign::Pocket", "Pocket001")
pocket2.Profile = sketch3
pocket2.Length = 16
pocket2.Reversed = True
doc.recompute()

fillet = body.newObject("PartDesign::Fillet", "Fillet")
fillet.Base = (pocket2, edges_at(pocket2, [
    (18.107, 7.5, 8),
    (7.5, 18.107, 8),
    (-18.107, 7.5, 8),
    (-7.5, 18.107, 8),
    (-7.5, -18.107, 8),
    (-18.107, -7.5, 8),
    (18.107, -7.5, 8),
    (7.5, -18.107, 8),
]))
fillet.Radius = 5
doc.recompute()

fillet2 = body.newObject("PartDesign::Fillet", "Fillet001")
fillet2.Base = (fillet, edges_at(fillet, [
    (139.697, 7.5, 8),
    (7.5, 83.97, 8),
    (77.238, 87.845, 8),
    (-139.697, 7.5, 8),
    (-7.5, 83.97, 8),
    (-77.238, 87.845, 8),
    (-77.238, -87.845, 8),
    (-7.5, -83.97, 8),
    (-139.697, -7.5, 8),
    (139.697, -7.5, 8),
    (77.238, -87.845, 8),
    (7.5, -83.97, 8),
]))
fillet2.Radius = 10

# Sketch on XY plane
sketch4 = body.newObject("Sketcher::SketchObject", "Sketch003")
sketch4.AttachmentSupport = (doc.getObject("XY_Plane"), [""])
sketch4.MapMode = "FlatFace"
sketch4.addGeometry([
    Part.Circle(App.Vector(125, -75, 0), App.Vector(0, 0, 1), 13),
    Part.Circle(App.Vector(-125, -75, 0), App.Vector(0, 0, 1), 13),
    Part.Circle(App.Vector(-125, 75, 0), App.Vector(0, 0, 1), 13),
    Part.Circle(App.Vector(125, 75, 0), App.Vector(0, 0, 1), 13),
], False)
sketch4.addConstraint([
    Sketcher.Constraint("Equal", 0, 1),
    Sketcher.Constraint("Equal", 1, 2),
    Sketcher.Constraint("Equal", 2, 3),
    Sketcher.Constraint("Symmetric", 0, 3, 2, 3, -1, 1),
    Sketcher.Constraint("Symmetric", 1, 3, 3, 3, -1, 1),
    Sketcher.Constraint("Symmetric", 0, 3, 1, 3, -2),
    Sketcher.Constraint("Diameter", 0, 26.0),
    Sketcher.Constraint("DistanceX", -1, 1, 0, 3, 125.0),
    Sketcher.Constraint("DistanceY", 0, 3, -1, 1, 75.0),
])
pocket3 = body.newObject("PartDesign::Pocket", "Pocket002")
pocket3.Profile = sketch4
pocket3.Length = 90
pocket3.Reversed = True

# Sketch on XY plane
sketch5 = body.newObject("Sketcher::SketchObject", "Sketch004")
sketch5.AttachmentSupport = (doc.getObject("XY_Plane"), [""])
sketch5.MapMode = "FlatFace"
sketch5.addGeometry(Part.Circle(App.Vector(0, 0, 0), App.Vector(0, 0, 1), 7.5), False)
sketch5.addConstraint([
    Sketcher.Constraint("Coincident", 0, 3, -1, 1),
    Sketcher.Constraint("Diameter", 0, 15.0),
])
pocket4 = body.newObject("PartDesign::Pocket", "Pocket003")
pocket4.Profile = sketch5
pocket4.Length = 15
pocket4.Reversed = True
doc.recompute()

fillet3 = body.newObject("PartDesign::Fillet", "Fillet002")
fillet3.Base = (pocket4, edges_at(pocket4, [
    (-150, 100, 16),
    (150, 100, 16),
    (150, -100, 16),
    (-150, -100, 16),
]))
fillet3.Radius = 5

# Sketch on XY plane
sketch6 = body.newObject("Sketcher::SketchObject", "Sketch005")
sketch6.AttachmentSupport = (doc.getObject("XY_Plane"), [""])
sketch6.MapMode = "FlatFace"
sketch6.addGeometry([
    Part.ArcOfCircle(Part.Circle(App.Vector(-66.948015, -84.959109, 0), App.Vector(0, 0, 1), 230), math.radians(27.042886), math.radians(46.304405)),  # 0
    Part.ArcOfCircle(Part.Circle(App.Vector(47.142857, 0, 0), App.Vector(0, 0, 1), 92.857143), math.radians(12.193089), math.radians(61.154203)),  # 1
    Part.ArcOfCircle(Part.Circle(App.Vector(-66.948015, 84.959109, 0), App.Vector(0, 0, 1), 230), math.radians(-46.304405), math.radians(-27.042886)),  # 2
    Part.ArcOfCircle(Part.Circle(App.Vector(47.142857, 0, 0), App.Vector(0, 0, 1), 92.857143), math.radians(-61.154203), math.radians(-12.193089)),  # 3
    Part.ArcOfCircle(Part.Circle(App.Vector(66.948015, -84.959109, 0), App.Vector(0, 0, 1), 230), math.radians(133.695595), math.radians(152.957114)),  # 4
    Part.ArcOfCircle(Part.Circle(App.Vector(-47.142857, 0, 0), App.Vector(0, 0, 1), 92.857143), math.radians(118.845797), math.radians(167.806911)),  # 5
    Part.ArcOfCircle(Part.Circle(App.Vector(66.948015, 84.959109, 0), App.Vector(0, 0, 1), 230), math.radians(-152.957114), math.radians(-133.695595)),  # 6
    Part.ArcOfCircle(Part.Circle(App.Vector(-47.142857, 0, 0), App.Vector(0, 0, 1), 92.857143), math.radians(-167.806911), math.radians(-118.845797)),  # 7
], False)
sketch6.addConstraint([
    Sketcher.Constraint("Coincident", 0, 1, 1, 1),
    Sketcher.Constraint("Coincident", 1, 2, 0, 2),
    Sketcher.Constraint("Coincident", 2, 1, 3, 1),
    Sketcher.Constraint("Coincident", 3, 2, 2, 2),
    Sketcher.Constraint("Coincident", 4, 1, 5, 1),
    Sketcher.Constraint("Coincident", 5, 2, 4, 2),
    Sketcher.Constraint("Coincident", 6, 1, 7, 1),
    Sketcher.Constraint("Coincident", 7, 2, 6, 2),
    Sketcher.Constraint("Coincident", 3, 3, 1, 3),
    Sketcher.Constraint("Coincident", 7, 3, 5, 3),
    Sketcher.Constraint("Equal", 0, 2),
    Sketcher.Constraint("Equal", 1, 3),
    Sketcher.Constraint("Equal", 2, 4),
    Sketcher.Constraint("Equal", 3, 5),
    Sketcher.Constraint("Equal", 4, 6),
    Sketcher.Constraint("Equal", 5, 7),
    Sketcher.Constraint("Symmetric", 2, 3, 4, 3, -1, 1),
    Sketcher.Constraint("Symmetric", 1, 3, 5, 3, -1, 1),
    Sketcher.Constraint("Symmetric", 0, 3, 6, 3, -1, 1),
    Sketcher.Constraint("Symmetric", 0, 3, 4, 3, -2),
    Sketcher.Constraint("PointOnObject", 1, 3, -1),
    Sketcher.Constraint("Radius", 0, 230.0),
    Sketcher.Constraint("Radius", 1, 92.857143),
    Sketcher.Constraint("DistanceY", 0, 3, -1, 1, 84.959109),
    Sketcher.Constraint("DistanceX", -1, 1, 0, 1, 137.905271),
    Sketcher.Constraint("DistanceY", -1, 1, 0, 1, 19.612069),
])
pad2 = body.newObject("PartDesign::Pad", "Pad001")
pad2.Profile = sketch6
pad2.Length = 30
doc.recompute()

fillet4 = body.newObject("PartDesign::Fillet", "Fillet003")
fillet4.Base = (pad2, edges_at(pad2, [
    (91.942, 81.336, 8),
    (-91.942, 81.336, 8),
    (-91.942, -81.336, 8),
    (91.942, -81.336, 8),
]))
fillet4.Radius = 10

# Sketch on XY plane
sketch7 = body.newObject("Sketcher::SketchObject", "Sketch006")
sketch7.AttachmentSupport = (doc.getObject("XY_Plane"), [""])
sketch7.MapMode = "FlatFace"
sketch7.AttachmentOffset = App.Placement(App.Vector(0, 0, 15), App.Rotation())
sketch7.addGeometry(Part.Circle(App.Vector(0, 0, 0), App.Vector(0, 0, 1), 3), False)
sketch7.addConstraint([
    Sketcher.Constraint("Coincident", 0, 3, -1, 1),
    Sketcher.Constraint("Diameter", 0, 6.0),
])
pocket5 = body.newObject("PartDesign::Pocket", "Pocket004")
pocket5.Profile = sketch7
pocket5.Length = 58
pocket5.Reversed = True

# Sketch on XY plane
sketch8 = body.newObject("Sketcher::SketchObject", "Sketch007")
sketch8.AttachmentSupport = (doc.getObject("XY_Plane"), [""])
sketch8.MapMode = "FlatFace"
sketch8.AttachmentOffset = App.Placement(App.Vector(0, 0, 32), App.Rotation())
sketch8.addGeometry([
    Part.LineSegment(App.Vector(-4.497069, -8.069058, 0), App.Vector(4.739475, -7.929105, 0)),  # 0
    Part.LineSegment(App.Vector(4.739475, -7.929105, 0), App.Vector(9.236544, 0.139953, 0)),  # 1
    Part.LineSegment(App.Vector(9.236544, 0.139953, 0), App.Vector(4.497069, 8.069058, 0)),  # 2
    Part.LineSegment(App.Vector(4.497069, 8.069058, 0), App.Vector(-4.739475, 7.929105, 0)),  # 3
    Part.LineSegment(App.Vector(-4.739475, 7.929105, 0), App.Vector(-9.236544, -0.139953, 0)),  # 4
    Part.LineSegment(App.Vector(-9.236544, -0.139953, 0), App.Vector(-4.497069, -8.069058, 0)),  # 5
], False)
sketch8.addConstraint([
    Sketcher.Constraint("Coincident", 0, 2, 1, 1),
    Sketcher.Constraint("Coincident", 1, 2, 2, 1),
    Sketcher.Constraint("Coincident", 2, 2, 3, 1),
    Sketcher.Constraint("Coincident", 3, 2, 4, 1),
    Sketcher.Constraint("Coincident", 4, 2, 5, 1),
    Sketcher.Constraint("Coincident", 5, 2, 0, 1),
    Sketcher.Constraint("Symmetric", 0, 2, 3, 2, -1, 1),
    Sketcher.Constraint("Symmetric", 1, 2, 4, 2, -1, 1),
    Sketcher.Constraint("Symmetric", 2, 2, 5, 2, -1, 1),
    Sketcher.Constraint("Equal", 0, 1),
    Sketcher.Constraint("Equal", 1, 2),
    Sketcher.Constraint("DistanceX", -1, 1, 2, 2, 4.497069),
    Sketcher.Constraint("DistanceY", -1, 1, 2, 2, 8.069058),
    Sketcher.Constraint("DistanceX", 0, 2, 1, 2, 4.497069),
    Sketcher.Constraint("DistanceY", 0, 2, 1, 2, 8.069058),
])
pocket6 = body.newObject("PartDesign::Pocket", "Pocket005")
pocket6.Profile = sketch8
pocket6.Length = 5

doc.recompute()
